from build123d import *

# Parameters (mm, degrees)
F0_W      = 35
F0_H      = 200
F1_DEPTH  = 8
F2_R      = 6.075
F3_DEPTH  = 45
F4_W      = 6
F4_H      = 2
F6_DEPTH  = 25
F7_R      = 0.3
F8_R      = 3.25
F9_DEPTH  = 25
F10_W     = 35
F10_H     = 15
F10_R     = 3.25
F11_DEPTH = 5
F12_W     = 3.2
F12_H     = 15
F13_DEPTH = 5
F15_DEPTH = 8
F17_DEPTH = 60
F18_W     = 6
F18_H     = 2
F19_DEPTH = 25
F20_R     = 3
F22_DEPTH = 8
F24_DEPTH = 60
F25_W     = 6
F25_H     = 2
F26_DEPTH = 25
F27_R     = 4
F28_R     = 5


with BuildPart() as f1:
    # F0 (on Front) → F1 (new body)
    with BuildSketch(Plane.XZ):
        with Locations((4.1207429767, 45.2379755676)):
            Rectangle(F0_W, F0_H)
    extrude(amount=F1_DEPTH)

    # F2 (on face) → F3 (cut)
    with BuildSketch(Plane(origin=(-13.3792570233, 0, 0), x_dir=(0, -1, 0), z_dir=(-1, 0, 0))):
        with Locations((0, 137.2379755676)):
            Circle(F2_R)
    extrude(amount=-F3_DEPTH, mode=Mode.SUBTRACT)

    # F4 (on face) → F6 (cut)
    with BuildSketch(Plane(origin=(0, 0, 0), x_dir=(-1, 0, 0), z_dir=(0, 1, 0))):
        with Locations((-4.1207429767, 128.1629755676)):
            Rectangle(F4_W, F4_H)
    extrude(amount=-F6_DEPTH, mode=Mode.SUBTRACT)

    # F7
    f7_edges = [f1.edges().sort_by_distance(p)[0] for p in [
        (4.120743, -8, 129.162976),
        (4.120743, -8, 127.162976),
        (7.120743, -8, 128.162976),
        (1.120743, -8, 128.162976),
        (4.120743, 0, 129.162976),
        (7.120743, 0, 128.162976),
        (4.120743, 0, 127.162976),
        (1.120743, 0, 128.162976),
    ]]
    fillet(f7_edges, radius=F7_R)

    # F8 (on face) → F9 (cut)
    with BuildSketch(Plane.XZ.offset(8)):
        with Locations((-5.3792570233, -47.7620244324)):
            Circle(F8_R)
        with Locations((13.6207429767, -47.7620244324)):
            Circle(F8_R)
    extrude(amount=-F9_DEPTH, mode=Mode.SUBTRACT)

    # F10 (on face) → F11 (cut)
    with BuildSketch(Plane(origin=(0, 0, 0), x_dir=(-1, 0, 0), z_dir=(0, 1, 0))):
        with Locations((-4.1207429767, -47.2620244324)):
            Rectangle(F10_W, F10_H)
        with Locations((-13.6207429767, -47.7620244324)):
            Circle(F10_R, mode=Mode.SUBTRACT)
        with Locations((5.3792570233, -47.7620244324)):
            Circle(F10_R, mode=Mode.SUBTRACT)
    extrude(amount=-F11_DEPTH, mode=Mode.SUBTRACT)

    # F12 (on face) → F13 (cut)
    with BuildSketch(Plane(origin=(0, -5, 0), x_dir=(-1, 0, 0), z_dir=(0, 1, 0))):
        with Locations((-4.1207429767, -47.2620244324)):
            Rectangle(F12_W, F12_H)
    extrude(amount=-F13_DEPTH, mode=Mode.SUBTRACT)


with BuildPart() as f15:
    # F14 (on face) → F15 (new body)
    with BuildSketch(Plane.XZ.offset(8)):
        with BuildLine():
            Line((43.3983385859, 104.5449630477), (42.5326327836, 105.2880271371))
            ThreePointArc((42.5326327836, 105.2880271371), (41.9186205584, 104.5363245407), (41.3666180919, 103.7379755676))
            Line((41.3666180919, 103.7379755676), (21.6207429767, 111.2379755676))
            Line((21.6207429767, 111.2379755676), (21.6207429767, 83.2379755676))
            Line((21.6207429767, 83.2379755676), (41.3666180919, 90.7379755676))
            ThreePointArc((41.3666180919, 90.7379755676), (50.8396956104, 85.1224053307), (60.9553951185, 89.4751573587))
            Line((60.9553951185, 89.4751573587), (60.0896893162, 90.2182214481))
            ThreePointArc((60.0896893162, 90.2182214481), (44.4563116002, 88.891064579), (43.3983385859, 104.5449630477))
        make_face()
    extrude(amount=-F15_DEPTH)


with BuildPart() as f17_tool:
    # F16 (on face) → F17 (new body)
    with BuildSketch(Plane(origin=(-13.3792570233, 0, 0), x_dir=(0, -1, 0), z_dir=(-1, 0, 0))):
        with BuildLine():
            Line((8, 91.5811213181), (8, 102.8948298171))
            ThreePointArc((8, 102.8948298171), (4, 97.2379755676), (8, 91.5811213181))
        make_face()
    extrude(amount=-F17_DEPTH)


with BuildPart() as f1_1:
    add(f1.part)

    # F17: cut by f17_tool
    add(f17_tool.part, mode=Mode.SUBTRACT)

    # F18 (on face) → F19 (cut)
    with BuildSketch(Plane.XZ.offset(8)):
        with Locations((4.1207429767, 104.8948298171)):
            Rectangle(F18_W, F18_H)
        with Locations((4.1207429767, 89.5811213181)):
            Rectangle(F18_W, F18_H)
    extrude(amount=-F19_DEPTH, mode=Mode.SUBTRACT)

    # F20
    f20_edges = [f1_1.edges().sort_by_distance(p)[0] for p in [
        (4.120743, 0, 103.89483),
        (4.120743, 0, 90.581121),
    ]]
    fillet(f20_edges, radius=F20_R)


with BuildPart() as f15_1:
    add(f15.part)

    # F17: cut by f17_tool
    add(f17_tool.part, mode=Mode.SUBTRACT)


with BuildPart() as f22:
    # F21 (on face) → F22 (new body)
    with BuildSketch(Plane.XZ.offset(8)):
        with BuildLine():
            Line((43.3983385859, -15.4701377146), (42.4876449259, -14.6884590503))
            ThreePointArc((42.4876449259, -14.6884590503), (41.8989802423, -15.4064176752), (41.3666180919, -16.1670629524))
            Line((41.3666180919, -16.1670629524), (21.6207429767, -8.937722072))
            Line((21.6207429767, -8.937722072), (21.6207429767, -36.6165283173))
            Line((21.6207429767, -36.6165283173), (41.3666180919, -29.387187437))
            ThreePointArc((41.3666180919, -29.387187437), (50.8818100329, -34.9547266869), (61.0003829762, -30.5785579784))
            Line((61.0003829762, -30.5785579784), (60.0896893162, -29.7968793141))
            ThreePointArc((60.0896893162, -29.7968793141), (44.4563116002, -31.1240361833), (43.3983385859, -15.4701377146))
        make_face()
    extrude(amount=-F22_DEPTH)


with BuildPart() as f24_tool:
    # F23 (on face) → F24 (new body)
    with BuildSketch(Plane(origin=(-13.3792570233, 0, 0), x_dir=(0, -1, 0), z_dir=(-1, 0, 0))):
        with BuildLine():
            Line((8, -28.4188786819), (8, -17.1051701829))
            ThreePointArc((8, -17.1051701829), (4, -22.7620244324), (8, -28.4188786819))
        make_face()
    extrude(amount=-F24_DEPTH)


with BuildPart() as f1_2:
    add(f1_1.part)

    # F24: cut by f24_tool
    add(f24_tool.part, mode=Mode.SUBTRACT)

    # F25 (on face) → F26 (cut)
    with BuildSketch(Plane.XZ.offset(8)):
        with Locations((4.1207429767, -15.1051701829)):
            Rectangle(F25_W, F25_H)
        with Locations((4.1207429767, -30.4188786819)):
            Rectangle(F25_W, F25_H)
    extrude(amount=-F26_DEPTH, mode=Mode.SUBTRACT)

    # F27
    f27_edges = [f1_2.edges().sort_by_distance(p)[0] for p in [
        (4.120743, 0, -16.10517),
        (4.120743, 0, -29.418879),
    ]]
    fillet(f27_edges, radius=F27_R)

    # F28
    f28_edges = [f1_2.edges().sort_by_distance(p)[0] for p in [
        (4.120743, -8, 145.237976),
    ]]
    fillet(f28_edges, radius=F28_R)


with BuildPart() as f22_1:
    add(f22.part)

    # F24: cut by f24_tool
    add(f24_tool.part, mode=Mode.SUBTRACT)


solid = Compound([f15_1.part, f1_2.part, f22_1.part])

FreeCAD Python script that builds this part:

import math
import FreeCAD as App
import Part
import Sketcher

V = App.Vector
Q = App.Units.Quantity


def edges_at(feature, points):
    """Names of the edges that pass closest to the given points."""
    edges = feature.Shape.Edges
    near = lambda p: min(range(len(edges)), key=lambda i: edges[i].distToShape(Part.Vertex(*p))[0])
    return sorted({f"Edge{near(p) + 1}" for p in points})

doc = App.newDocument("Part")
body = doc.addObject("PartDesign::Body", "Body")

# Sketch on XZ plane
sketch1 = body.newObject("Sketcher::SketchObject", "Sketch")
sketch1.AttachmentSupport = (doc.getObject("XZ_Plane"), [""])
sketch1.MapMode = "FlatFace"
sketch1.addGeometry([
    Part.LineSegment(V(-13.379257, 145.237976, 0), V(-13.379257, -54.762024, 0)),
    Part.LineSegment(V(-13.379257, -54.762024, 0), V(21.620743, -54.762024, 0)),
    Part.LineSegment(V(21.620743, -54.762024, 0), V(21.620743, 145.237976, 0)),
    Part.LineSegment(V(21.620743, 145.237976, 0), V(-13.379257, 145.237976, 0)),
], False)
sketch1.addConstraint([
    Sketcher.Constraint("Coincident", 0, 2, 1, 1),
    Sketcher.Constraint("Coincident", 1, 2, 2, 1),
    Sketcher.Constraint("Coincident", 2, 2, 3, 1),
    Sketcher.Constraint("Coincident", 3, 2, 0, 1),
    Sketcher.Constraint("Vertical", 0),
    Sketcher.Constraint("Horizontal", 1),
    Sketcher.Constraint("Vertical", 2),
    Sketcher.Constraint("Horizontal", 3),
    Sketcher.Constraint("DistanceX", 1, 1, 1, 2, Q("35 mm")),
    Sketcher.Constraint("DistanceY", 0, 2, 0, 1, Q("200 mm")),
    Sketcher.Constraint("DistanceX", 0, 2, -1, 1, Q("13.379257 mm")),
    Sketcher.Constraint("DistanceY", 0, 2, -1, 1, Q("54.762024 mm")),
])
pad1 = body.newObject("PartDesign::Pad", "Pad")
pad1.Profile = sketch1
pad1.Length = 8

# Sketch on YZ plane
sketch2 = body.newObject("Sketcher::SketchObject", "Sketch001")
sketch2.AttachmentSupport = (doc.getObject("YZ_Plane"), [""])
sketch2.MapMode = "FlatFace"
sketch2.AttachmentOffset = App.Placement(V(0, 0, -13.379257), App.Rotation())
sketch2.addGeometry(Part.Circle(V(0, 137.237976, 0), V(0, 0, 1), 6.075), False)
sketch2.addConstraint([
    Sketcher.Constraint("PointOnObject", 0, 3, -2),
    Sketcher.Constraint("Diameter", 0, Q("12.15 mm")),
    Sketcher.Constraint("DistanceY", -1, 1, 0, 3, Q("137.237976 mm")),
])
pocket1 = body.newObject("PartDesign::Pocket", "Pocket")
pocket1.Profile = sketch2
pocket1.Length = 45
pocket1.Reversed = True

# Sketch on XZ plane
sketch3 = body.newObject("Sketcher::SketchObject", "Sketch002")
sketch3.AttachmentSupport = (doc.getObject("XZ_Plane"), [""])
sketch3.MapMode = "FlatFace"
sketch3.addGeometry([
    Part.LineSegment(V(7.120743, 129.162976, 0), V(7.120743, 127.162976, 0)),
    Part.LineSegment(V(7.120743, 127.162976, 0), V(1.120743, 127.162976, 0)),
    Part.LineSegment(V(1.120743, 127.162976, 0), V(1.120743, 129.162976, 0)),
    Part.LineSegment(V(1.120743, 129.162976, 0), V(7.120743, 129.162976, 0)),
], False)
sketch3.addConstraint([
    Sketcher.Constraint("Coincident", 0, 2, 1, 1),
    Sketcher.Constraint("Coincident", 1, 2, 2, 1),
    Sketcher.Constraint("Coincident", 2, 2, 3, 1),
    Sketcher.Constraint("Coincident", 3, 2, 0, 1),
    Sketcher.Constraint("Vertical", 0),
    Sketcher.Constraint("Horizontal", 1),
    Sketcher.Constraint("Vertical", 2),
    Sketcher.Constraint("Horizontal", 3),
    Sketcher.Constraint("DistanceX", 1, 2, 1, 1, Q("6 mm")),
    Sketcher.Constraint("DistanceY", 0, 2, 0, 1, Q("2 mm")),
    Sketcher.Constraint("DistanceX", -1, 1, 0, 2, Q("7.120743 mm")),
    Sketcher.Constraint("DistanceY", -1, 1, 0, 2, Q("127.162976 mm")),
])
pocket2 = body.newObject("PartDesign::Pocket", "Pocket001")
pocket2.Profile = sketch3
pocket2.Length = 25
pocket2.Reversed = True
doc.recompute()

fillet = body.newObject("PartDesign::Fillet", "Fillet")
fillet.Base = (pocket2, edges_at(pocket2, [
    (4.121, -8, 129.163),
    (4.121, -8, 127.163),
    (7.121, -8, 128.163),
    (1.121, -8, 128.163),
    (4.121, 0, 129.163),
    (7.121, 0, 128.163),
    (4.121, 0, 127.163),
    (1.121, 0, 128.163),
]))
fillet.Radius = 0.3

# Sketch on XZ plane
sketch4 = body.newObject("Sketcher::SketchObject", "Sketch003")
sketch4.AttachmentSupport = (doc.getObject("XZ_Plane"), [""])
sketch4.MapMode = "FlatFace"
sketch4.AttachmentOffset = App.Placement(V(0, 0, 8), App.Rotation())
sketch4.addGeometry([
    Part.Circle(V(-5.379257, -47.762024, 0), V(0, 0, 1), 3.25),
    Part.Circle(V(13.620743, -47.762024, 0), V(0, 0, 1), 3.25),
], False)
sketch4.addConstraint([
    Sketcher.Constraint("Equal", 0, 1),
    Sketcher.Constraint("Horizontal", 0, 3, 1, 3),
    Sketcher.Constraint("Diameter", 0, Q("6.5 mm")),
    Sketcher.Constraint("DistanceX", 0, 3, 1, 3, Q("19 mm")),
    Sketcher.Constraint("DistanceX", 0, 3, -1, 1, Q("5.379257 mm")),
    Sketcher.Constraint("DistanceY", 0, 3, -1, 1, Q("47.762024 mm")),
])
pocket3 = body.newObject("PartDesign::Pocket", "Pocket002")
pocket3.Profile = sketch4
pocket3.Length = 25

# Sketch on XZ plane
sketch5 = body.newObject("Sketcher::SketchObject", "Sketch004")
sketch5.AttachmentSupport = (doc.getObject("XZ_Plane"), [""])
sketch5.MapMode = "FlatFace"
sketch5.addGeometry([
    Part.LineSegment(V(21.620743, -39.762024, 0), V(21.620743, -54.762024, 0)),  # 0
    Part.LineSegment(V(21.620743, -54.762024, 0), V(-13.379257, -54.762024, 0)),  # 1
    Part.LineSegment(V(-13.379257, -54.762024, 0), V(-13.379257, -39.762024, 0)),  # 2
    Part.LineSegment(V(-13.379257, -39.762024, 0), V(21.620743, -39.762024, 0)),  # 3
    Part.Circle(V(13.620743, -47.762024, 0), V(0, 0, 1), 3.25),  # 4
    Part.Circle(V(-5.379257, -47.762024, 0), V(0, 0, 1), 3.25),  # 5
], False)
sketch5.addConstraint([
    Sketcher.Constraint("Coincident", 0, 2, 1, 1),
    Sketcher.Constraint("Coincident", 1, 2, 2, 1),
    Sketcher.Constraint("Coincident", 2, 2, 3, 1),
    Sketcher.Constraint("Coincident", 3, 2, 0, 1),
    Sketcher.Constraint("Vertical", 0),
    Sketcher.Constraint("Horizontal", 1),
    Sketcher.Constraint("Vertical", 2),
    Sketcher.Constraint("Horizontal", 3),
    Sketcher.Constraint("Equal", 4, 5),
    Sketcher.Constraint("Horizontal", 4, 3, 5, 3),
    Sketcher.Constraint("Diameter", 4, Q("6.5 mm")),
    Sketcher.Constraint("DistanceX", 1, 2, 1, 1, Q("35 mm")),
    Sketcher.Constraint("DistanceY", 0, 2, 0, 1, Q("15 mm")),
    Sketcher.Constraint("DistanceX", 5, 3, 4, 3, Q("19 mm")),
    Sketcher.Constraint("DistanceX", 4, 3, 0, 2, Q("8 mm")),
    Sketcher.Constraint("DistanceY", 0, 2, 4, 3, Q("7 mm")),
    Sketcher.Constraint("DistanceX", -1, 1, 4, 3, Q("13.620743 mm")),
    Sketcher.Constraint("DistanceY", 4, 3, -1, 1, Q("47.762024 mm")),
])
pocket4 = body.newObject("PartDesign::Pocket", "Pocket003")
pocket4.Profile = sketch5
pocket4.Length = 5
pocket4.Reversed = True

# Sketch on XZ plane
sketch6 = body.newObject("Sketcher::SketchObject", "Sketch005")
sketch6.AttachmentSupport = (doc.getObject("XZ_Plane"), [""])
sketch6.MapMode = "FlatFace"
sketch6.AttachmentOffset = App.Placement(V(0, 0, 5), App.Rotation())
sketch6.addGeometry([
    Part.LineSegment(V(5.720743, -39.762024, 0), V(5.720743, -54.762024, 0)),
    Part.LineSegment(V(5.720743, -54.762024, 0), V(2.520743, -54.762024, 0)),
    Part.LineSegment(V(2.520743, -54.762024, 0), V(2.520743, -39.762024, 0)),
    Part.LineSegment(V(2.520743, -39.762024, 0), V(5.720743, -39.762024, 0)),
], False)
sketch6.addConstraint([
    Sketcher.Constraint("Coincident", 0, 2, 1, 1),
    Sketcher.Constraint("Coincident", 1, 2, 2, 1),
    Sketcher.Constraint("Coincident", 2, 2, 3, 1),
    Sketcher.Constraint("Coincident", 3, 2, 0, 1),
    Sketcher.Constraint("Vertical", 0),
    Sketcher.Constraint("Horizontal", 1),
    Sketcher.Constraint("Vertical", 2),
    Sketcher.Constraint("Horizontal", 3),
    Sketcher.Constraint("DistanceY", 0, 2, 0, 1, Q("15 mm")),
    Sketcher.Constraint("DistanceX", 1, 2, 1, 1, Q("3.2 mm")),
    Sketcher.Constraint("DistanceX", -1, 1, 0, 2, Q("5.720743 mm")),
    Sketcher.Constraint("DistanceY", 0, 2, -1, 1, Q("54.762024 mm")),
])
pocket5 = body.newObject("PartDesign::Pocket", "Pocket004")
pocket5.Profile = sketch6
pocket5.Length = 5
pocket5.Reversed = True
body2 = doc.addObject("PartDesign::Body", "Body001")

# Sketch on XZ plane
sketch7 = body2.newObject("Sketcher::SketchObject", "Sketch006")
sketch7.AttachmentSupport = (doc.getObject("XZ_Plane001"), [""])
sketch7.MapMode = "FlatFace"
sketch7.AttachmentOffset = App.Placement(V(0, 0, 8), App.Rotation())
sketch7.addGeometry([
    Part.LineSegment(V(43.398339, 104.544963, 0), V(42.532633, 105.288027, 0)),  # 0
    Part.ArcOfCircle(Part.Circle(V(51.620743, 97.237976, 0), V(0, 0, 1), 12.14072), math.radians(138.466171), math.radians(147.629747)),  # 1
    Part.LineSegment(V(41.366618, 103.737976, 0), V(21.620743, 111.237976, 0)),  # 2
    Part.LineSegment(V(21.620743, 111.237976, 0), V(21.620743, 83.237976, 0)),  # 3
    Part.LineSegment(V(21.620743, 83.237976, 0), V(41.366618, 90.737976, 0)),  # 4
    Part.ArcOfCircle(Part.Circle(V(51.620743, 97.237976, 0), V(0, 0, 1), 12.14072), math.radians(-147.629747), math.radians(-39.747351)),  # 5
    Part.LineSegment(V(60.955395, 89.475157, 0), V(60.089689, 90.218221, 0)),  # 6
    Part.ArcOfCircle(Part.Circle(V(51.620743, 97.237976, 0), V(0, 0, 1), 11), math.radians(138.373532), math.radians(320.345288)),  # 7
], False)
sketch7.addConstraint([
    Sketcher.Constraint("Coincident", 0, 2, 1, 1),
    Sketcher.Constraint("Coincident", 1, 2, 2, 1),
    Sketcher.Constraint("Coincident", 2, 2, 3, 1),
    Sketcher.Constraint("Coincident", 3, 2, 4, 1),
    Sketcher.Constraint("Coincident", 4, 2, 5, 1),
    Sketcher.Constraint("Coincident", 5, 2, 6, 1),
    Sketcher.Constraint("Coincident", 6, 2, 7, 2),
    Sketcher.Constraint("Coincident", 7, 1, 0, 1),
    Sketcher.Constraint("Vertical", 3),
    Sketcher.Constraint("Coincident", 5, 3, 1, 3),
    Sketcher.Constraint("Coincident", 7, 3, 1, 3),
    Sketcher.Constraint("Equal", 1, 5),
    Sketcher.Constraint("Parallel", 0, 6),
    Sketcher.Constraint("Vertical", 1, 2, 4, 2),
    Sketcher.Constraint("Equal", 2, 4),
    Sketcher.Constraint("Equal", 0, 6),
    Sketcher.Constraint("Radius", 7, Q("11 mm")),
    Sketcher.Constraint("DistanceY", 3, 2, 3, 1, Q("28 mm")),
    Sketcher.Constraint("DistanceX", 2, 2, 5, 3, Q("30 mm")),
    Sketcher.Constraint("DistanceY", 4, 2, 1, 2, Q("13 mm")),
    Sketcher.Constraint("Radius", 1, Q("12.14072 mm")),
    Sketcher.Constraint("DistanceX", -1, 1, 1, 2, Q("41.366618 mm")),
    Sketcher.Constraint("DistanceX", -1, 1, 6, 2, Q("60.089689 mm")),
    Sketcher.Constraint("DistanceY", -1, 1, 6, 2, Q("90.218221 mm")),
    Sketcher.Constraint("DistanceX", -1, 1, 7, 1, Q("43.398339 mm")),
])
pad2 = body2.newObject("PartDesign::Pad", "Pad001")
pad2.Profile = sketch7
pad2.Length = 8
pad2.Reversed = True
body3 = doc.addObject("PartDesign::Body", "Body002")

# Sketch on YZ plane
sketch8 = body3.newObject("Sketcher::SketchObject", "Sketch007")
sketch8.AttachmentSupport = (doc.getObject("YZ_Plane002"), [""])
sketch8.MapMode = "FlatFace"
sketch8.AttachmentOffset = App.Placement(V(0, 0, -13.379257), App.Rotation())
sketch8.addGeometry([
    Part.LineSegment(V(-8, 91.581121, 0), V(-8, 102.89483, 0)),
    Part.ArcOfCircle(Part.Circle(V(-10, 97.237976, 0), V(0, 0, 1), 6), math.radians(-70.528779), math.radians(70.528779)),
], False)
sketch8.addConstraint([
    Sketcher.Constraint("Coincident", 0, 1, 1, 1),
    Sketcher.Constraint("Coincident", 1, 2, 0, 2),
    Sketcher.Constraint("Vertical", 0),
    Sketcher.Constraint("Radius", 1, Q("6 mm")),
    Sketcher.Constraint("DistanceX", 1, 3, -1, 1, Q("10 mm")),
    Sketcher.Constraint("DistanceX", 0, 1, -1, 1, Q("8 mm")),
    Sketcher.Constraint("DistanceY", -1, 1, 0, 1, Q("91.581121 mm")),
])
pad3 = body3.newObject("PartDesign::Pad", "Pad002")
pad3.Profile = sketch8
pad3.Length = 60
doc.recompute()

body4 = doc.addObject("PartDesign::Body", "Body003")
body4.BaseFeature = body3
boolean = body.newObject("PartDesign::Boolean", "Boolean")
boolean.Type = "Cut"
boolean.addObjects([body4])
doc.recompute()

# Sketch on XZ plane
sketch9 = body.newObject("Sketcher::SketchObject", "Sketch008")
sketch9.AttachmentSupport = (doc.getObject("XZ_Plane"), [""])
sketch9.MapMode = "FlatFace"
sketch9.AttachmentOffset = App.Placement(V(0, 0, 8), App.Rotation())
sketch9.addGeometry([
    Part.LineSegment(V(1.120743, 105.89483, 0), V(1.120743, 103.89483, 0)),  # 0
    Part.LineSegment(V(1.120743, 103.89483, 0), V(7.120743, 103.89483, 0)),  # 1
    Part.LineSegment(V(7.120743, 103.89483, 0), V(7.120743, 105.89483, 0)),  # 2
    Part.LineSegment(V(7.120743, 105.89483, 0), V(1.120743, 105.89483, 0)),  # 3
    Part.LineSegment(V(1.120743, 90.581121, 0), V(1.120743, 88.581121, 0)),  # 4
    Part.LineSegment(V(1.120743, 88.581121, 0), V(7.120743, 88.581121, 0)),  # 5
    Part.LineSegment(V(7.120743, 88.581121, 0), V(7.120743, 90.581121, 0)),  # 6
    Part.LineSegment(V(7.120743, 90.581121, 0), V(1.120743, 90.581121, 0)),  # 7
], False)
sketch9.addConstraint([
    Sketcher.Constraint("Coincident", 0, 2, 1, 1),
    Sketcher.Constraint("Coincident", 1, 2, 2, 1),
    Sketcher.Constraint("Coincident", 2, 2, 3, 1),
    Sketcher.Constraint("Coincident", 3, 2, 0, 1),
    Sketcher.Constraint("Coincident", 4, 2, 5, 1),
    Sketcher.Constraint("Coincident", 5, 2, 6, 1),
    Sketcher.Constraint("Coincident", 6, 2, 7, 1),
    Sketcher.Constraint("Coincident", 7, 2, 4, 1),
    Sketcher.Constraint("Vertical", 0),
    Sketcher.Constraint("Horizontal", 1),
    Sketcher.Constraint("Vertical", 2),
    Sketcher.Constraint("Horizontal", 3),
    Sketcher.Constraint("Vertical", 4),
    Sketcher.Constraint("Horizontal", 5),
    Sketcher.Constraint("Vertical", 6),
    Sketcher.Constraint("Horizontal", 7),
    Sketcher.Constraint("Vertical", 3, 2, 4, 2),
    Sketcher.Constraint("Vertical", 2, 2, 5, 2),
    Sketcher.Constraint("Equal", 2, 4),
    Sketcher.Constraint("DistanceX", 1, 1, 1, 2, Q("6 mm")),
    Sketcher.Constraint("DistanceY", 0, 2, 0, 1, Q("2 mm")),
    Sketcher.Constraint("DistanceY", -1, 1, 0, 2, Q("103.89483 mm")),
    Sketcher.Constraint("DistanceY", -1, 1, 4, 2, Q("88.581121 mm")),
    Sketcher.Constraint("DistanceX", -1, 1, 0, 2, Q("1.120743 mm")),
])
pocket6 = body.newObject("PartDesign::Pocket", "Pocket005")
pocket6.Profile = sketch9
pocket6.Length = 25
doc.recompute()

fillet2 = body.newObject("PartDesign::Fillet", "Fillet001")
fillet2.Base = (pocket6, edges_at(pocket6, [(4.121, 0, 103.895), (4.121, 0, 90.581)]))
fillet2.Radius = 3
doc.recompute()

boolean2 = body2.newObject("PartDesign::Boolean", "Boolean001")
boolean2.Type = "Cut"
boolean2.addObjects([body3])
body5 = doc.addObject("PartDesign::Body", "Body004")

# Sketch on XZ plane
sketch10 = body5.newObject("Sketcher::SketchObject", "Sketch009")
sketch10.AttachmentSupport = (doc.getObject("XZ_Plane004"), [""])
sketch10.MapMode = "FlatFace"
sketch10.AttachmentOffset = App.Placement(V(0, 0, 8), App.Rotation())
sketch10.addGeometry([
    Part.LineSegment(V(43.398339, -15.470138, 0), V(42.487645, -14.688459, 0)),  # 0
    Part.ArcOfCircle(Part.Circle(V(51.620743, -22.777125, 0), V(0, 0, 1), 12.2), math.radians(138.470512), math.radians(147.193172)),  # 1
    Part.LineSegment(V(41.366618, -16.167063, 0), V(21.620743, -8.937722, 0)),  # 2
    Part.LineSegment(V(21.620743, -8.937722, 0), V(21.620743, -36.616528, 0)),  # 3
    Part.LineSegment(V(21.620743, -36.616528, 0), V(41.366618, -29.387187, 0)),  # 4
    Part.ArcOfCircle(Part.Circle(V(51.620743, -22.777125, 0), V(0, 0, 1), 12.2), math.radians(-147.193172), math.radians(-39.751692)),  # 5
    Part.LineSegment(V(61.000383, -30.578558, 0), V(60.089689, -29.796879, 0)),  # 6
    Part.ArcOfCircle(Part.Circle(V(51.620743, -22.777125, 0), V(0, 0, 1), 11), math.radians(138.373532), math.radians(320.345288)),  # 7
], False)
sketch10.addConstraint([
    Sketcher.Constraint("Coincident", 0, 2, 1, 1),
    Sketcher.Constraint("Coincident", 1, 2, 2, 1),
    Sketcher.Constraint("Coincident", 2, 2, 3, 1),
    Sketcher.Constraint("Coincident", 3, 2, 4, 1),
    Sketcher.Constraint("Coincident", 4, 2, 5, 1),
    Sketcher.Constraint("Coincident", 5, 2, 6, 1),
    Sketcher.Constraint("Coincident", 6, 2, 7, 2),
    Sketcher.Constraint("Coincident", 7, 1, 0, 1),
    Sketcher.Constraint("Vertical", 3),
    Sketcher.Constraint("Coincident", 5, 3, 1, 3),
    Sketcher.Constraint("Coincident", 7, 3, 1, 3),
    Sketcher.Constraint("Equal", 1, 5),
    Sketcher.Constraint("Parallel", 0, 6),
    Sketcher.Constraint("Vertical", 1, 2, 4, 2),
    Sketcher.Constraint("Equal", 2, 4),
    Sketcher.Constraint("Equal", 0, 6),
    Sketcher.Constraint("Radius", 7, Q("11 mm")),
    Sketcher.Constraint("Radius", 1, Q("12.2 mm")),
    Sketcher.Constraint("DistanceX", 2, 2, 1, 3, Q("30 mm")),
    Sketcher.Constraint("DistanceX", 0, 2, 1, 3, Q("9.133098 mm")),
    Sketcher.Constraint("Distance", 2, Q("21.027671 mm")),
    Sketcher.Constraint("DistanceY", 3, 2, 3, 1, Q("27.678806 mm")),
    Sketcher.Constraint("DistanceY", 0, 2, -1, 1, Q("14.688459 mm")),
    Sketcher.Constraint("DistanceX", -1, 1, 1, 2, Q("41.366618 mm")),
    Sketcher.Constraint("DistanceX", -1, 1, 6, 2, Q("60.089689 mm")),
])
pad4 = body5.newObject("PartDesign::Pad", "Pad003")
pad4.Profile = sketch10
pad4.Length = 8
pad4.Reversed = True
body6 = doc.addObject("PartDesign::Body", "Body005")

# Sketch on YZ plane
sketch11 = body6.newObject("Sketcher::SketchObject", "Sketch010")
sketch11.AttachmentSupport = (doc.getObject("YZ_Plane005"), [""])
sketch11.MapMode = "FlatFace"
sketch11.AttachmentOffset = App.Placement(V(0, 0, -13.379257), App.Rotation())
sketch11.addGeometry([
    Part.LineSegment(V(-8, -28.418879, 0), V(-8, -17.10517, 0)),
    Part.ArcOfCircle(Part.Circle(V(-10, -22.762024, 0), V(0, 0, 1), 6), math.radians(-70.528779), math.radians(70.528779)),
], False)
sketch11.addConstraint([
    Sketcher.Constraint("Coincident", 0, 1, 1, 1),
    Sketcher.Constraint("Coincident", 1, 2, 0, 2),
    Sketcher.Constraint("Vertical", 0),
    Sketcher.Constraint("Radius", 1, Q("6 mm")),
    Sketcher.Constraint("DistanceX", 1, 3, -1, 1, Q("10 mm")),
    Sketcher.Constraint("DistanceX", 0, 1, -1, 1, Q("8 mm")),
    Sketcher.Constraint("DistanceY", 0, 1, -1, 1, Q("28.418879 mm")),
])
pad5 = body6.newObject("PartDesign::Pad", "Pad004")
pad5.Profile = sketch11
pad5.Length = 60
doc.recompute()

body7 = doc.addObject("PartDesign::Body", "Body006")
body7.BaseFeature = body6
boolean3 = body.newObject("PartDesign::Boolean", "Boolean002")
boolean3.Type = "Cut"
boolean3.addObjects([body7])
doc.recompute()

# Sketch on XZ plane
sketch12 = body.newObject("Sketcher::SketchObject", "Sketch011")
sketch12.AttachmentSupport = (doc.getObject("XZ_Plane"), [""])
sketch12.MapMode = "FlatFace"
sketch12.AttachmentOffset = App.Placement(V(0, 0, 8), App.Rotation())
sketch12.addGeometry([
    Part.LineSegment(V(1.120743, -14.10517, 0), V(1.120743, -16.10517, 0)),  # 0
    Part.LineSegment(V(1.120743, -16.10517, 0), V(7.120743, -16.10517, 0)),  # 1
    Part.LineSegment(V(7.120743, -16.10517, 0), V(7.120743, -14.10517, 0)),  # 2
    Part.LineSegment(V(7.120743, -14.10517, 0), V(1.120743, -14.10517, 0)),  # 3
    Part.LineSegment(V(1.120743, -29.418879, 0), V(1.120743, -31.418879, 0)),  # 4
    Part.LineSegment(V(1.120743, -31.418879, 0), V(7.120743, -31.418879, 0)),  # 5
    Part.LineSegment(V(7.120743, -31.418879, 0), V(7.120743, -29.418879, 0)),  # 6
    Part.LineSegment(V(7.120743, -29.418879, 0), V(1.120743, -29.418879, 0)),  # 7
], False)
sketch12.addConstraint([
    Sketcher.Constraint("Coincident", 0, 2, 1, 1),
    Sketcher.Constraint("Coincident", 1, 2, 2, 1),
    Sketcher.Constraint("Coincident", 2, 2, 3, 1),
    Sketcher.Constraint("Coincident", 3, 2, 0, 1),
    Sketcher.Constraint("Coincident", 4, 2, 5, 1),
    Sketcher.Constraint("Coincident", 5, 2, 6, 1),
    Sketcher.Constraint("Coincident", 6, 2, 7, 1),
    Sketcher.Constraint("Coincident", 7, 2, 4, 1),
    Sketcher.Constraint("Vertical", 0),
    Sketcher.Constraint("Horizontal", 1),
    Sketcher.Constraint("Vertical", 2),
    Sketcher.Constraint("Horizontal", 3),
    Sketcher.Constraint("Vertical", 4),
    Sketcher.Constraint("Horizontal", 5),
    Sketcher.Constraint("Vertical", 6),
    Sketcher.Constraint("Horizontal", 7),
    Sketcher.Constraint("Vertical", 3, 2, 4, 2),
    Sketcher.Constraint("Vertical", 2, 2, 5, 2),
    Sketcher.Constraint("Equal", 2, 4),
    Sketcher.Constraint("DistanceX", 1, 1, 1, 2, Q("6 mm")),
    Sketcher.Constraint("DistanceY", 0, 2, 0, 1, Q("2 mm")),
    Sketcher.Constraint("DistanceY", 0, 2, -1, 1, Q("16.10517 mm")),
    Sketcher.Constraint("DistanceY", 4, 2, -1, 1, Q("31.418879 mm")),
    Sketcher.Constraint("DistanceX", -1, 1, 0, 2, Q("1.120743 mm")),
])
pocket7 = body.newObject("PartDesign::Pocket", "Pocket006")
pocket7.Profile = sketch12
pocket7.Length = 25
doc.recompute()

fillet3 = body.newObject("PartDesign::Fillet", "Fillet002")
fillet3.Base = (pocket7, edges_at(pocket7, [(4.121, 0, -16.105), (4.121, 0, -29.419)]))
fillet3.Radius = 4
doc.recompute()

fillet4 = body.newObject("PartDesign::Fillet", "Fillet003")
fillet4.Base = (fillet3, edges_at(fillet3, [(4.121, -8, 145.238)]))
fillet4.Radius = 5
doc.recompute()

boolean4 = body5.newObject("PartDesign::Boolean", "Boolean003")
boolean4.Type = "Cut"
boolean4.addObjects([body6])

doc.recompute()
